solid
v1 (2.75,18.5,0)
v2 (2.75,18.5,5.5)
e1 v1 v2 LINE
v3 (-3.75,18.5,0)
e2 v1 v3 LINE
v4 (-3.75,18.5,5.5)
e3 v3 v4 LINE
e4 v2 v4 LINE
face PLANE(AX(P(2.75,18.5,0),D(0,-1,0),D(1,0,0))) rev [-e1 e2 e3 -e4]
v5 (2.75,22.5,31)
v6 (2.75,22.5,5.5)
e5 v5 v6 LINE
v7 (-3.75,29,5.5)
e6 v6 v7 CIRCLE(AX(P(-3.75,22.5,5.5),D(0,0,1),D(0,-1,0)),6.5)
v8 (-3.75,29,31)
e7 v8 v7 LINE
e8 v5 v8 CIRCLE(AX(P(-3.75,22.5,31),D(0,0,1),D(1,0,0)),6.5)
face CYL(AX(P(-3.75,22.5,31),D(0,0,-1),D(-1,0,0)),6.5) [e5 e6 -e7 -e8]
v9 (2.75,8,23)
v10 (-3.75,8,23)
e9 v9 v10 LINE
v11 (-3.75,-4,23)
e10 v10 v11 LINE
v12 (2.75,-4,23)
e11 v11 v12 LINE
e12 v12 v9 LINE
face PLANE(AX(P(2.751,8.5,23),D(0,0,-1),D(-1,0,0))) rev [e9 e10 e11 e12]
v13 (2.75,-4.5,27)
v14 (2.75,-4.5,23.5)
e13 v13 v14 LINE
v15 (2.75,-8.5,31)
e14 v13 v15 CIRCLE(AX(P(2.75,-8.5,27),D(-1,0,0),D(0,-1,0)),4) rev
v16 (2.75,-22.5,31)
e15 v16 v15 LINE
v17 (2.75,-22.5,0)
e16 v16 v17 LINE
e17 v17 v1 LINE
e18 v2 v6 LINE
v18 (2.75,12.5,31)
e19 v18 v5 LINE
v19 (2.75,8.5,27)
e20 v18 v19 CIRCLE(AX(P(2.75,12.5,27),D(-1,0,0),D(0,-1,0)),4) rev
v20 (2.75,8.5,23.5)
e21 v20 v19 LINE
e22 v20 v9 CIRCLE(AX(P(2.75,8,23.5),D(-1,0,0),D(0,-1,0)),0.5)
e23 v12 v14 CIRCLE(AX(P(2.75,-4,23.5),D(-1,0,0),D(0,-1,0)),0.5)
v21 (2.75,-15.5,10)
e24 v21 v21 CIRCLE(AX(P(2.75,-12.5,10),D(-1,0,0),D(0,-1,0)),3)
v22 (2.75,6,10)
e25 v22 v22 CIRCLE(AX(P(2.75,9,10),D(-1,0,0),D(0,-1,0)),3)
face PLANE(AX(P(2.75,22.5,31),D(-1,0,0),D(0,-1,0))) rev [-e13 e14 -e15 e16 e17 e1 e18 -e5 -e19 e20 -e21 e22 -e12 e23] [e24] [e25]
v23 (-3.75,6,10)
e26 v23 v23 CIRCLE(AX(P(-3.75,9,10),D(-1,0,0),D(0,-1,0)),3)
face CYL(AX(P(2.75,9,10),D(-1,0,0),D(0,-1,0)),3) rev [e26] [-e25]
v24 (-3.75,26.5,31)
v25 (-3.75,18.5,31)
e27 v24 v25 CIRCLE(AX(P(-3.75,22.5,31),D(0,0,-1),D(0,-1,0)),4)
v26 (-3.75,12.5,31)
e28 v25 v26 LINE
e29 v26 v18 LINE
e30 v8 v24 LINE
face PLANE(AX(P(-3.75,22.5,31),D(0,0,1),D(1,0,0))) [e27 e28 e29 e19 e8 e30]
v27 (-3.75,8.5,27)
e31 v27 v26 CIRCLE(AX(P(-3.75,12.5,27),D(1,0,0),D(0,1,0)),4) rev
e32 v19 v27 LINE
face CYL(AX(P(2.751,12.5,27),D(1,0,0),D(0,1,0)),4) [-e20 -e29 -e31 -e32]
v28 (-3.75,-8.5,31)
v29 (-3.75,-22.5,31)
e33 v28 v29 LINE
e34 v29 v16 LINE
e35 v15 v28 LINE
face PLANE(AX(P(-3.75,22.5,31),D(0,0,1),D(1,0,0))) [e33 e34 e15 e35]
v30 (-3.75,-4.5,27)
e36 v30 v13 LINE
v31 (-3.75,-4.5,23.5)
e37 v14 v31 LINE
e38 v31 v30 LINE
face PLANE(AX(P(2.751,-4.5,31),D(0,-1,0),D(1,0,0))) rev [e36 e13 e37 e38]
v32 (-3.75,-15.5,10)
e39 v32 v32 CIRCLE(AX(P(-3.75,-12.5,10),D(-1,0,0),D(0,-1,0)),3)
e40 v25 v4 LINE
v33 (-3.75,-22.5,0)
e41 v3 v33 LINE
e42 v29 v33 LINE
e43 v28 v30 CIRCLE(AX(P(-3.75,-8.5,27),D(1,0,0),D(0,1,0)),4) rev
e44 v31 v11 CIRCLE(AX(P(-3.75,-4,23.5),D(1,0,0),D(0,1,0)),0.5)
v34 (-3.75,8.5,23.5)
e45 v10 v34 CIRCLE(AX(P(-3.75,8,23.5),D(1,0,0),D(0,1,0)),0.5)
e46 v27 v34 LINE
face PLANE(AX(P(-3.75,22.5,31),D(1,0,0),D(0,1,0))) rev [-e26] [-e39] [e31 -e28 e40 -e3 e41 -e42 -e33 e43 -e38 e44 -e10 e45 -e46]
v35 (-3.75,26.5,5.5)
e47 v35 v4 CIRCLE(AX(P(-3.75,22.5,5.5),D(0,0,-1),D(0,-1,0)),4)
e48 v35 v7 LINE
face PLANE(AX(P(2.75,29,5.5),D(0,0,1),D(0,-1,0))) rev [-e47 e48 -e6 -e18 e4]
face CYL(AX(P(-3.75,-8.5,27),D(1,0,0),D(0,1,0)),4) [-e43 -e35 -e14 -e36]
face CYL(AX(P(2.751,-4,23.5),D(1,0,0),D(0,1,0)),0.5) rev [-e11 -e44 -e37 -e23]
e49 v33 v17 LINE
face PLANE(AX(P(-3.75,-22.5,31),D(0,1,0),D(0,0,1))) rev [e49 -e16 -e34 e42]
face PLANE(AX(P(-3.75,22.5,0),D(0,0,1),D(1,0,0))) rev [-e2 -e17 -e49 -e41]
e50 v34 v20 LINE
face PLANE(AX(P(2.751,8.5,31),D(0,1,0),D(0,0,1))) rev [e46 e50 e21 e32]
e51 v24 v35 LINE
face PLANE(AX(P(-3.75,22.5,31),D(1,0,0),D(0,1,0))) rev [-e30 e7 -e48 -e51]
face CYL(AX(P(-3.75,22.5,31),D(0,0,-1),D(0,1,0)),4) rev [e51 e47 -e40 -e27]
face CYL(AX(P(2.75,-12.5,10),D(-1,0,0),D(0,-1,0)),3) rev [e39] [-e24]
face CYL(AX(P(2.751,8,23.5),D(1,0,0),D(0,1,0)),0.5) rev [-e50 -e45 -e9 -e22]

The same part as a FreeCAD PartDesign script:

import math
import FreeCAD as App
import Part
import Sketcher

V = App.Vector


def edges_at(feature, points):
    """Names of the edges that pass closest to the given points."""
    edges = feature.Shape.Edges
    near = lambda p: min(range(len(edges)), key=lambda i: edges[i].distToShape(Part.Vertex(*p))[0])
    return sorted({f"Edge{near(p) + 1}" for p in points})

doc = App.newDocument("Part")
body = doc.addObject("PartDesign::Body", "Body")

# Sketch on XY plane
sketch1 = body.newObject("Sketcher::SketchObject", "Sketch")
sketch1.AttachmentSupport = (doc.getObject("XY_Plane"), [""])
sketch1.MapMode = "FlatFace"
sketch1.addGeometry([
    Part.LineSegment(V(-3.75, 29, 0), V(-3.75, -22.5, 0)),
    Part.LineSegment(V(-3.75, -22.5, 0), V(2.75, -22.5, 0)),
    Part.LineSegment(V(2.75, -22.5, 0), V(2.75, 22.5, 0)),
    Part.ArcOfCircle(Part.Circle(V(-3.75, 22.5, 0), V(0, 0, 1), 6.5), math.radians(0), math.radians(90)),
], False)
sketch1.addConstraint([
    Sketcher.Constraint("Coincident", 0, 2, 1, 1),
    Sketcher.Constraint("Coincident", 1, 2, 2, 1),
    Sketcher.Constraint("Tangent", 2, 2, 3, 1),
    Sketcher.Constraint("Coincident", 3, 2, 0, 1),
    Sketcher.Constraint("Vertical", 0),
    Sketcher.Constraint("Horizontal", 1),
    Sketcher.Constraint("Vertical", 2),
    Sketcher.Constraint("Vertical", 3, 3, 0, 2),
    Sketcher.Constraint("Radius", 3, 6.5),
    Sketcher.Constraint("DistanceY", 2, 1, 2, 2, 45.0),
    Sketcher.Constraint("DistanceY", -1, 1, 3, 2, 29.0),
    Sketcher.Constraint("DistanceX", 3, 3, -1, 1, 3.75),
])
pad1 = body.newObject("PartDesign::Pad", "Pad")
pad1.Profile = sketch1
pad1.Length = 31

# Sketch on YZ plane
sketch2 = body.newObject("Sketcher::SketchObject", "Sketch001")
sketch2.AttachmentSupport = (doc.getObject("YZ_Plane"), [""])
sketch2.MapMode = "FlatFace"
sketch2.AttachmentOffset = App.Placement(V(0, 0, -3.75), App.Rotation())
sketch2.addGeometry([
    Part.LineSegment(V(29, 0, 0), V(18.5, 0, 0)),
    Part.LineSegment(V(18.5, 0, 0), V(18.5, 5.5, 0)),
    Part.LineSegment(V(18.5, 5.5, 0), V(29, 5.5, 0)),
    Part.LineSegment(V(29, 5.5, 0), V(29, 0, 0)),
], False)
sketch2.addConstraint([
    Sketcher.Constraint("Coincident", 0, 2, 1, 1),
    Sketcher.Constraint("Coincident", 1, 2, 2, 1),
    Sketcher.Constraint("Coincident", 2, 2, 3, 1),
    Sketcher.Constraint("Coincident", 3, 2, 0, 1),
    Sketcher.Constraint("Horizontal", 0),
    Sketcher.Constraint("Vertical", 1),
    Sketcher.Constraint("Horizontal", 2),
    Sketcher.Constraint("Vertical", 3),
    Sketcher.Constraint("PointOnObject", 0, 2, -1),
    Sketcher.Constraint("DistanceX", 0, 2, 0, 1, 10.5),
    Sketcher.Constraint("DistanceY", 1, 1, 1, 2, 5.5),
    Sketcher.Constraint("DistanceX", -1, 1, 2, 2, 29.0),
])
pocket1 = body.newObject("PartDesign::Pocket", "Pocket")
pocket1.Profile = sketch2
pocket1.Type = "ThroughAll"
pocket1.Reversed = True

# Sketch on YZ plane
sketch3 = body.newObject("Sketcher::SketchObject", "Sketch002")
sketch3.AttachmentSupport = (doc.getObject("YZ_Plane"), [""])
sketch3.MapMode = "FlatFace"
sketch3.AttachmentOffset = App.Placement(V(0, 0, -3.75), App.Rotation())
sketch3.addGeometry([
    Part.Circle(V(9, 10, 0), V(0, 0, 1), 3),
    Part.Circle(V(-12.5, 10, 0), V(0, 0, 1), 3),
], False)
sketch3.addConstraint([
    Sketcher.Constraint("Equal", 0, 1),
    Sketcher.Constraint("Horizontal", 0, 3, 1, 3),
    Sketcher.Constraint("Diameter", 0, 6.0),
    Sketcher.Constraint("DistanceX", -1, 1, 0, 3, 9.0),
    Sketcher.Constraint("DistanceY", -1, 1, 0, 3, 10.0),
    Sketcher.Constraint("DistanceX", 1, 3, -1, 1, 12.5),
])
pocket2 = body.newObject("PartDesign::Pocket", "Pocket001")
pocket2.Profile = sketch3
pocket2.Type = "ThroughAll"
pocket2.Reversed = True

# Sketch on XY plane
sketch4 = body.newObject("Sketcher::SketchObject", "Sketch003")
sketch4.AttachmentSupport = (doc.getObject("XY_Plane"), [""])
sketch4.MapMode = "FlatFace"
sketch4.AttachmentOffset = App.Placement(V(0, 0, 5.5), App.Rotation())
sketch4.addGeometry([
    Part.LineSegment(V(-3.75, 18.5, 0), V(-3.75, 26.5, 0)),
    Part.ArcOfCircle(Part.Circle(V(-3.75, 22.5, 0), V(0, 0, 1), 4), math.radians(-90), math.radians(90)),
], False)
sketch4.addConstraint([
    Sketcher.Constraint("Coincident", 0, 1, 1, 1),
    Sketcher.Constraint("Coincident", 1, 2, 0, 2),
    Sketcher.Constraint("Vertical", 0),
    Sketcher.Constraint("Vertical", 1, 3, 0, 1),
    Sketcher.Constraint("Radius", 1, 4.0),
    Sketcher.Constraint("DistanceY", -1, 1, 1, 3, 22.5),
    Sketcher.Constraint("DistanceX", 1, 3, -1, 1, 3.75),
])
pocket3 = body.newObject("PartDesign::Pocket", "Pocket002")
pocket3.Profile = sketch4
pocket3.Type = "ThroughAll"
pocket3.Reversed = True

# Sketch on YZ plane
sketch5 = body.newObject("Sketcher::SketchObject", "Sketch004")
sketch5.AttachmentSupport = (doc.getObject("YZ_Plane"), [""])
sketch5.MapMode = "FlatFace"
sketch5.AttachmentOffset = App.Placement(V(0, 0, -3.75), App.Rotation())
sketch5.addGeometry([
    Part.LineSegment(V(8.5, 23, 0), V(-4.5, 23, 0)),
    Part.LineSegment(V(-4.5, 23, 0), V(-4.5, 31, 0)),
    Part.LineSegment(V(-4.5, 31, 0), V(8.5, 31, 0)),
    Part.LineSegment(V(8.5, 31, 0), V(8.5, 23, 0)),
], False)
sketch5.addConstraint([
    Sketcher.Constraint("Coincident", 0, 2, 1, 1),
    Sketcher.Constraint("Coincident", 1, 2, 2, 1),
    Sketcher.Constraint("Coincident", 2, 2, 3, 1),
    Sketcher.Constraint("Coincident", 3, 2, 0, 1),
    Sketcher.Constraint("Horizontal", 0),
    Sketcher.Constraint("Vertical", 1),
    Sketcher.Constraint("Horizontal", 2),
    Sketcher.Constraint("Vertical", 3),
    Sketcher.Constraint("DistanceX", 0, 2, 0, 1, 13.0),
    Sketcher.Constraint("DistanceY", 1, 1, 1, 2, 8.0),
    Sketcher.Constraint("DistanceY", -1, 1, 0, 2, 23.0),
    Sketcher.Constraint("DistanceX", 0, 2, -1, 1, 4.5),
])
pocket4 = body.newObject("PartDesign::Pocket", "Pocket003")
pocket4.Profile = sketch5
pocket4.Type = "UpToFirst"
pocket4.Reversed = True
doc.recompute()

fillet = body.newObject("PartDesign::Fillet", "Fillet")
fillet.Base = (pocket4, edges_at(pocket4, [(-0.5, -4.5, 23), (-0.5, 8.5, 23)]))
fillet.Radius = 0.5
doc.recompute()

fillet2 = body.newObject("PartDesign::Fillet", "Fillet001")
fillet2.Base = (fillet, edges_at(fillet, [(-0.5, 8.5, 31), (-0.5, -4.5, 31)]))
fillet2.Radius = 4

doc.recompute()
